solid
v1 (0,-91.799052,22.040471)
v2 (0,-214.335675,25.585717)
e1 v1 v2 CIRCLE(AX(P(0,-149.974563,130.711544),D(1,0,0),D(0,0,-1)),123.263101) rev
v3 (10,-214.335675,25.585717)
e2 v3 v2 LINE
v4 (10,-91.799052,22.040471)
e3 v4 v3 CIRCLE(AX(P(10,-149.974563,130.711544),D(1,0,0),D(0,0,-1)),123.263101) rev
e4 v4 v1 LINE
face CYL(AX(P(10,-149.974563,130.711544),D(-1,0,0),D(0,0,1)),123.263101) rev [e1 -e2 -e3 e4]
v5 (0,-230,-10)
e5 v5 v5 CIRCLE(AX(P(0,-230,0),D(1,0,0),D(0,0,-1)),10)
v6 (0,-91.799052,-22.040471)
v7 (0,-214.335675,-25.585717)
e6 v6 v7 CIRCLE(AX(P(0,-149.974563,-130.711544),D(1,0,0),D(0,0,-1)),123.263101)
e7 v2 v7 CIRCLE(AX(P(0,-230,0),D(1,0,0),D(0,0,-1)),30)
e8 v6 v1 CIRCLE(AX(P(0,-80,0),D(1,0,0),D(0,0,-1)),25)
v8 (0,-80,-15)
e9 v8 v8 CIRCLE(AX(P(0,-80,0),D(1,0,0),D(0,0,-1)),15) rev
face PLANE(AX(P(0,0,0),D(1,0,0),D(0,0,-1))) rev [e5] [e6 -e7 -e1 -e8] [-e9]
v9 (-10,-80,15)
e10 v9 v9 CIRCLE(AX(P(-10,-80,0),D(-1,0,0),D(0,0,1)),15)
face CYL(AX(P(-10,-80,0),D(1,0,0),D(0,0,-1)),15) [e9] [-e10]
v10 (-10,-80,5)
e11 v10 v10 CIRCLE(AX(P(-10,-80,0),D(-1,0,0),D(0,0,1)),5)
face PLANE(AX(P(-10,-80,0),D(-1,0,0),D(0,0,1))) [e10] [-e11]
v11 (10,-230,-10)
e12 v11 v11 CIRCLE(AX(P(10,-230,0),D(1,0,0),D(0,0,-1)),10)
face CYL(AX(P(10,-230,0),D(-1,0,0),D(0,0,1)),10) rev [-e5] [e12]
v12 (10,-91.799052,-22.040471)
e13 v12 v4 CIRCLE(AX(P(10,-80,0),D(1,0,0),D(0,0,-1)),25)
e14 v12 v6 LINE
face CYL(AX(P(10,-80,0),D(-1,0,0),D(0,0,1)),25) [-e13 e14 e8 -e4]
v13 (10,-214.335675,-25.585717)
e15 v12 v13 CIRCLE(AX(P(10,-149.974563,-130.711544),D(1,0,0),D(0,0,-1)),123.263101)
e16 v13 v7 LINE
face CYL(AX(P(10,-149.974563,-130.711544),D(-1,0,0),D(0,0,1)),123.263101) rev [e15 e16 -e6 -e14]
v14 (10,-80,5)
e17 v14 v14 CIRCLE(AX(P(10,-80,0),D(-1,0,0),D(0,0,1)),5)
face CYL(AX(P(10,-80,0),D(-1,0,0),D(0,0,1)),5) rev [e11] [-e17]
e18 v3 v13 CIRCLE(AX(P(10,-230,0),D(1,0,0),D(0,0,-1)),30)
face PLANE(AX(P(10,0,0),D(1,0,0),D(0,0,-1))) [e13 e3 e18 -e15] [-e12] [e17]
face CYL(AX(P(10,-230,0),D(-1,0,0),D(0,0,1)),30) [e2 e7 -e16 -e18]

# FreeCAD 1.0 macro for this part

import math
import FreeCAD as App
import Part
import Sketcher
Q = App.Units.Quantity

doc = App.newDocument("Part")
body = doc.addObject("PartDesign::Body", "Body")

sketch1 = body.newObject("Sketcher::SketchObject", "Sketch")
sketch1.AttachmentSupport = (doc.getObject("YZ_Plane"), [""])
sketch1.MapMode = "FlatFace"
sketch1.addGeometry([
    Part.ArcOfCircle(Part.Circle(App.Vector(-80, 0, 0), App.Vector(0, 0, 1), 25), math.radians(-118.161736), math.radians(118.161736)),
    Part.ArcOfCircle(Part.Circle(App.Vector(-149.974563, 130.711544, 0), App.Vector(0, 0, 1), 123.263101), math.radians(-121.476189), math.radians(-61.838264)),
    Part.ArcOfCircle(Part.Circle(App.Vector(-230, 0, 0), App.Vector(0, 0, 1), 30), math.radians(58.523811), math.radians(301.476189)),
    Part.ArcOfCircle(Part.Circle(App.Vector(-149.974563, -130.711544, 0), App.Vector(0, 0, 1), 123.263101), math.radians(61.838264), math.radians(121.476189)),
    Part.Circle(App.Vector(-230, 0, 0), App.Vector(0, 0, 1), 10),
], False)
sketch1.addConstraint([
    Sketcher.Constraint("Tangent", 0, 2, 1, 2),
    Sketcher.Constraint("Tangent", 1, 1, 2, 1),
    Sketcher.Constraint("Tangent", 2, 2, 3, 2),
    Sketcher.Constraint("Tangent", 3, 1, 0, 1),
    Sketcher.Constraint("Coincident", 4, 3, 2, 3),
    Sketcher.Constraint("Equal", 1, 3),
    Sketcher.Constraint("Symmetric", 1, 3, 3, 3, -1),
    Sketcher.Constraint("Diameter", 4, Q("20 mm")),
    Sketcher.Constraint("Radius", 0, Q("25 mm")),
    Sketcher.Constraint("Radius", 2, Q("30 mm")),
    Sketcher.Constraint("DistanceX", 0, 3, -1, 1, Q("80 mm")),
    Sketcher.Constraint("DistanceX", 2, 3, -1, 1, Q("230 mm")),
    Sketcher.Constraint("Radius", 1, Q("123.263101 mm")),
])
pad1 = body.newObject("PartDesign::Pad", "Pad")
pad1.Profile = sketch1
pad1.Length = 10

sketch2 = body.newObject("Sketcher::SketchObject", "Sketch001")
sketch2.AttachmentSupport = (doc.getObject("YZ_Plane"), [""])
sketch2.MapMode = "FlatFace"
sketch2.addGeometry(Part.Circle(App.Vector(-80, 0, 0), App.Vector(0, 0, 1), 15), False)
sketch2.addConstraint([
    Sketcher.Constraint("PointOnObject", 0, 3, -1),
    Sketcher.Constraint("Diameter", 0, Q("30 mm")),
    Sketcher.Constraint("DistanceX", 0, 3, -1, 1, Q("80 mm")),
])
pad2 = body.newObject("PartDesign::Pad", "Pad001")
pad2.Profile = sketch2
pad2.Length = 10
pad2.Reversed = True

sketch3 = body.newObject("Sketcher::SketchObject", "Sketch002")
sketch3.AttachmentSupport = (doc.getObject("YZ_Plane"), [""])
sketch3.MapMode = "FlatFace"
sketch3.AttachmentOffset = App.Placement(App.Vector(0, 0, -10), App.Rotation())
sketch3.addGeometry(Part.Circle(App.Vector(-80, 0, 0), App.Vector(0, 0, 1), 5), False)
sketch3.addConstraint([
    Sketcher.Constraint("PointOnObject", 0, 3, -1),
    Sketcher.Constraint("Diameter", 0, Q("10 mm")),
    Sketcher.Constraint("DistanceX", 0, 3, -1, 1, Q("80 mm")),
])
pocket1 = body.newObject("PartDesign::Pocket", "Pocket")
pocket1.Profile = sketch3
pocket1.Length = 20
pocket1.Reversed = True

doc.recompute()
